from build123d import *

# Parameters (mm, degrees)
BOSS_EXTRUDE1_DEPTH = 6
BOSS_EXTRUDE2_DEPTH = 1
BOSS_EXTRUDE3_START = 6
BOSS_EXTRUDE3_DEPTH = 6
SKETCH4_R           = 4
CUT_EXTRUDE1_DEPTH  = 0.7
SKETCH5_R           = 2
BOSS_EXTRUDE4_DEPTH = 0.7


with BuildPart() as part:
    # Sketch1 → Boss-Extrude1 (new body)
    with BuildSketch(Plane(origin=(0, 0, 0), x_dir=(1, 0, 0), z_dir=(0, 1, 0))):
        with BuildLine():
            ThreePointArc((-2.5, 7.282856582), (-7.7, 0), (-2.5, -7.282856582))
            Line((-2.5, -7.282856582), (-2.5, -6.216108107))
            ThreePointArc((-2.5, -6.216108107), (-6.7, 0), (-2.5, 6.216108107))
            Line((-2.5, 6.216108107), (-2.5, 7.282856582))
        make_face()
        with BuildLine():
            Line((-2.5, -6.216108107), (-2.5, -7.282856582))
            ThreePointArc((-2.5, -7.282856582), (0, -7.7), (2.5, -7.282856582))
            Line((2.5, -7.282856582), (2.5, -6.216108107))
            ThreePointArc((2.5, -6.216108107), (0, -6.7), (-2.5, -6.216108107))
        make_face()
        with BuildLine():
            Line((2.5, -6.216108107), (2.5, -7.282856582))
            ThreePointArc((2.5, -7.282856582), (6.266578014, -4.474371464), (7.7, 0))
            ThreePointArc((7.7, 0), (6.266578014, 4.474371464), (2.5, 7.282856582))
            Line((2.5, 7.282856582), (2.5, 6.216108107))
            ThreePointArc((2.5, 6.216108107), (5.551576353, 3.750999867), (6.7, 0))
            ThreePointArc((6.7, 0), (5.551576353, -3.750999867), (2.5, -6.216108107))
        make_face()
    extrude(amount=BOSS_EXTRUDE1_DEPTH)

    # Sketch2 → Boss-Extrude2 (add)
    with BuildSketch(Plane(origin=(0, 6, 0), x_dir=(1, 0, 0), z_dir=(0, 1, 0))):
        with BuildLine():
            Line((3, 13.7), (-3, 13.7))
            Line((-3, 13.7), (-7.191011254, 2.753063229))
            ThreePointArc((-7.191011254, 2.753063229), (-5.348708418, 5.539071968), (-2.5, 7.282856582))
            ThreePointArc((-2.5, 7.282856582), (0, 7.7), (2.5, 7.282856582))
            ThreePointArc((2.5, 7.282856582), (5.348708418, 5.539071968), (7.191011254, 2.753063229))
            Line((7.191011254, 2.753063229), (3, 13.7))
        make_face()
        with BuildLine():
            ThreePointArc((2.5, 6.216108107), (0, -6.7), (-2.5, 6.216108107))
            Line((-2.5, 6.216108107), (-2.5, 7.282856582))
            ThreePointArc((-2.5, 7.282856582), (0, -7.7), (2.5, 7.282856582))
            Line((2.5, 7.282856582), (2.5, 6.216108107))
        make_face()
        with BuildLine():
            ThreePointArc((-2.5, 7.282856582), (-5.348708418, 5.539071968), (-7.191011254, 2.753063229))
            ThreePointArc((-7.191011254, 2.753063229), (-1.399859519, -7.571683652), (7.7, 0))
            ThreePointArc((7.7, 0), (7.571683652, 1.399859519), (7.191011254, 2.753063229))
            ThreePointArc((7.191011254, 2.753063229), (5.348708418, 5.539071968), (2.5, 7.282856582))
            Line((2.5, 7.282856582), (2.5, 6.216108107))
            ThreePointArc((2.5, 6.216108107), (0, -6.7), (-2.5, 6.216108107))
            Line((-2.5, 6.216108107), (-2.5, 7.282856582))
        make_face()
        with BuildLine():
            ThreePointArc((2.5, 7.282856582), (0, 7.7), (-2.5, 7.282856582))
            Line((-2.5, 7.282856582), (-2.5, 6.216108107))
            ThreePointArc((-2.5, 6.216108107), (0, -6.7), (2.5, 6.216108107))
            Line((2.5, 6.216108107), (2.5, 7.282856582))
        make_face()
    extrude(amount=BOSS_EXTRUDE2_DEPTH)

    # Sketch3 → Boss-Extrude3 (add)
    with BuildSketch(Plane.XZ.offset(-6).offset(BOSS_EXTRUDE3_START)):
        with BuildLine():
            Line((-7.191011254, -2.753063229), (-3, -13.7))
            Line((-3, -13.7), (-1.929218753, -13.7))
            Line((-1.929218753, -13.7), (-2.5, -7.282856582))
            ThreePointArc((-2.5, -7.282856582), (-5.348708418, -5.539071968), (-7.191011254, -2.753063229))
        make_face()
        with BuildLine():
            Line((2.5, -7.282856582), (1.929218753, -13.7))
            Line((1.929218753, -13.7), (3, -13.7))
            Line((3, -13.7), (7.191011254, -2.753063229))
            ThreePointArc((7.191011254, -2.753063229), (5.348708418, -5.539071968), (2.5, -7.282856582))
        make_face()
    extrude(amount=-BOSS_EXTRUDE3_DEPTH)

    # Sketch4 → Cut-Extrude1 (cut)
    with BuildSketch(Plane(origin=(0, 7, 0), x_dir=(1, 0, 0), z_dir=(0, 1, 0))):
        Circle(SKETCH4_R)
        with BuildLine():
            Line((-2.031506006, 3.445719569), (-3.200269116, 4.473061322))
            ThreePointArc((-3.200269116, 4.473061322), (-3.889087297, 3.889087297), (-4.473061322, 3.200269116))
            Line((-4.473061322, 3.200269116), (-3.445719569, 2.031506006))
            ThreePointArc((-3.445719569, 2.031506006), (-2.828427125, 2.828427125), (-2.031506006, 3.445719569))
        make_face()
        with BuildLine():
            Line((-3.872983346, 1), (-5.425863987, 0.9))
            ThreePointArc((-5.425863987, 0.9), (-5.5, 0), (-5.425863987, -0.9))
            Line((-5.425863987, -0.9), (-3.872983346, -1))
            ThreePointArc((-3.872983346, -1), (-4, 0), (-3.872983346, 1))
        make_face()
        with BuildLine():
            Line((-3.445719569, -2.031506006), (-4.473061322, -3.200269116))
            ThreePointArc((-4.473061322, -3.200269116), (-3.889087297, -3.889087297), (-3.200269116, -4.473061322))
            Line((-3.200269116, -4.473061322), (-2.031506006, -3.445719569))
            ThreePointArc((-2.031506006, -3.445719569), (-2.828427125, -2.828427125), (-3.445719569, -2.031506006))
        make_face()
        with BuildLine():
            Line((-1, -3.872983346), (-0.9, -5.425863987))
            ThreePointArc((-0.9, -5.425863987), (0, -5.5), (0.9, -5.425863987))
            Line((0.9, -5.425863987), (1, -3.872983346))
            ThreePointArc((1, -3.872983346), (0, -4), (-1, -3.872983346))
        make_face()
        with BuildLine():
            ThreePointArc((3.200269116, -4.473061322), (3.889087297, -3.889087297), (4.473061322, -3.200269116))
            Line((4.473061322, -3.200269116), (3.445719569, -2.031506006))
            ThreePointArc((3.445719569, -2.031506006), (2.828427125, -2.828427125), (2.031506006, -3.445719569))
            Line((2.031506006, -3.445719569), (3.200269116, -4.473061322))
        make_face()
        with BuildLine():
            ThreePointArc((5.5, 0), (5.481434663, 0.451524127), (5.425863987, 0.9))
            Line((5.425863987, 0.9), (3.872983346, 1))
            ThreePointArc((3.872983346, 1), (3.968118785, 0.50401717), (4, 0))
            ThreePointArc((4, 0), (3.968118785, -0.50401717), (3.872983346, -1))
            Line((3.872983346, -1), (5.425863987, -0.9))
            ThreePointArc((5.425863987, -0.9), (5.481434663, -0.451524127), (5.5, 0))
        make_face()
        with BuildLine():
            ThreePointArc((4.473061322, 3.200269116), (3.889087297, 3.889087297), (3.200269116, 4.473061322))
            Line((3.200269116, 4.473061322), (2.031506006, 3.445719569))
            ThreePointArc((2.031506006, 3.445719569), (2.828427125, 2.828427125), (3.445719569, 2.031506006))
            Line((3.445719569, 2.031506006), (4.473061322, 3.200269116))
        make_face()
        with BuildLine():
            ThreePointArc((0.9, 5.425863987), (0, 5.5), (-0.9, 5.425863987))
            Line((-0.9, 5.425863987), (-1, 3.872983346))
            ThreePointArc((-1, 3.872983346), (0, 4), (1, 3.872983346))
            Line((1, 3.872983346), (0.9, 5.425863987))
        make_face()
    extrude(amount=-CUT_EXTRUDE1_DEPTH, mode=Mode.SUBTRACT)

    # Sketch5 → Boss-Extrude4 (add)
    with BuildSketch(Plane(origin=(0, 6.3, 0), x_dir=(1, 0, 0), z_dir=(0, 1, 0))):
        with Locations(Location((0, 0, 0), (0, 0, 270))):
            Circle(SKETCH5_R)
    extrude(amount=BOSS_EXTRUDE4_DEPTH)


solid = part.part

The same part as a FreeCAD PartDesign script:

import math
import FreeCAD as App
import Part
import Sketcher
from FreeCAD import Vector
Q = App.Units.Quantity

doc = App.newDocument("Part")
body = doc.addObject("PartDesign::Body", "Body")

# Sketch on XZ plane
sketch1 = body.newObject("Sketcher::SketchObject", "Sketch")
sketch1.AttachmentSupport = (doc.getObject("XZ_Plane"), [""])
sketch1.MapMode = "FlatFace"
sketch1.addGeometry([
    Part.ArcOfCircle(Part.Circle(Vector(0, 0, 0), Vector(0, 0, 1), 7.7), math.radians(109), math.radians(251)),  # 0
    Part.ArcOfCircle(Part.Circle(Vector(0, 0, 0), Vector(0, 0, 1), 7.7), math.radians(71), math.radians(109)),  # 1
    Part.ArcOfCircle(Part.Circle(Vector(0, 0, 0), Vector(0, 0, 1), 7.7), math.radians(0), math.radians(71)),  # 2
    Part.ArcOfCircle(Part.Circle(Vector(0, 0, 0), Vector(0, 0, 1), 7.7), math.radians(-71), math.radians(0)),  # 3
    Part.LineSegment(Vector(2.5, -7.3, 0), Vector(2.5, -6.2, 0)),  # 4
    Part.ArcOfCircle(Part.Circle(Vector(0, 0, 0), Vector(0, 0, 1), 6.7), math.radians(-68), math.radians(0)),  # 5
    Part.ArcOfCircle(Part.Circle(Vector(0, 0, 0), Vector(0, 0, 1), 6.7), math.radians(0), math.radians(68)),  # 6
    Part.ArcOfCircle(Part.Circle(Vector(0, 0, 0), Vector(0, 0, 1), 6.7), math.radians(68), math.radians(112)),  # 7
    Part.ArcOfCircle(Part.Circle(Vector(0, 0, 0), Vector(0, 0, 1), 6.7), math.radians(112), math.radians(248)),  # 8
    Part.LineSegment(Vector(-2.5, -6.2, 0), Vector(-2.5, -7.3, 0)),  # 9
], False)
sketch1.addConstraint([
    Sketcher.Constraint("Tangent", 0, 1, 1, 2),
    Sketcher.Constraint("Tangent", 1, 1, 2, 2),
    Sketcher.Constraint("Tangent", 2, 1, 3, 2),
    Sketcher.Constraint("Coincident", 3, 1, 4, 1),
    Sketcher.Constraint("Coincident", 4, 2, 5, 1),
    Sketcher.Constraint("Tangent", 5, 2, 6, 1),
    Sketcher.Constraint("Tangent", 6, 2, 7, 1),
    Sketcher.Constraint("Tangent", 7, 2, 8, 1),
    Sketcher.Constraint("Coincident", 8, 2, 9, 1),
    Sketcher.Constraint("Coincident", 9, 2, 0, 2),
    Sketcher.Constraint("Vertical", 4),
    Sketcher.Constraint("Vertical", 9),
    Sketcher.Constraint("Coincident", 0, 3, -1, 1),
    Sketcher.Constraint("Coincident", 2, 3, -1, 1),
    Sketcher.Constraint("Coincident", 5, 3, -1, 1),
    Sketcher.Constraint("Coincident", 7, 3, -1, 1),
    Sketcher.Constraint("Equal", 2, 3),
    Sketcher.Constraint("Equal", 7, 8),
    Sketcher.Constraint("PointOnObject", 2, 1, -1),
    Sketcher.Constraint("PointOnObject", 5, 2, -1),
    Sketcher.Constraint("Horizontal", 0, 1, 1, 1),
    Sketcher.Constraint("Horizontal", 6, 2, 7, 2),
    Sketcher.Constraint("Horizontal", 4, 2, 8, 2),
    Sketcher.Constraint("Vertical", 1, 1, 3, 1),
    Sketcher.Constraint("Vertical", 4, 2, 6, 2),
    Sketcher.Constraint("Radius", 0, Q("7.7 mm")),
    Sketcher.Constraint("Radius", 5, Q("6.7 mm")),
    Sketcher.Constraint("DistanceX", 0, 1, 1, 1, Q("5 mm")),
])
pad1 = body.newObject("PartDesign::Pad", "Pad")
pad1.Profile = sketch1
pad1.Length = 6
pad1.Reversed = True

# Sketch on XZ plane
sketch2 = body.newObject("Sketcher::SketchObject", "Sketch001")
sketch2.AttachmentSupport = (doc.getObject("XZ_Plane"), [""])
sketch2.MapMode = "FlatFace"
sketch2.AttachmentOffset = App.Placement(Vector(0, 0, -6), App.Rotation())
sketch2.addGeometry([
    Part.LineSegment(Vector(7, -3, 0), Vector(3, -14, 0)),
    Part.LineSegment(Vector(3, -14, 0), Vector(-3, -14, 0)),
    Part.LineSegment(Vector(-3, -14, 0), Vector(-7, -3, 0)),
    Part.ArcOfCircle(Part.Circle(Vector(0, 0, 0), Vector(0, 0, 1), 8), math.radians(-21), math.radians(201)),
], False)
sketch2.addConstraint([
    Sketcher.Constraint("Coincident", 0, 2, 1, 1),
    Sketcher.Constraint("Coincident", 1, 2, 2, 1),
    Sketcher.Constraint("Tangent", 2, 2, 3, 2),
    Sketcher.Constraint("Tangent", 3, 1, 0, 1),
    Sketcher.Constraint("Horizontal", 1),
    Sketcher.Constraint("Coincident", 3, 3, -1, 1),
    Sketcher.Constraint("Horizontal", 2, 2, 3, 1),
    Sketcher.Constraint("Radius", 3, Q("7.7 mm")),
    Sketcher.Constraint("DistanceX", 1, 2, 1, 1, Q("6 mm")),
    Sketcher.Constraint("DistanceY", 0, 2, -1, 1, Q("13.7 mm")),
])
pad2 = body.newObject("PartDesign::Pad", "Pad001")
pad2.Profile = sketch2
pad2.Length = 1
pad2.Reversed = True

# Sketch on XZ plane
sketch3 = body.newObject("Sketcher::SketchObject", "Sketch002")
sketch3.AttachmentSupport = (doc.getObject("XZ_Plane"), [""])
sketch3.MapMode = "FlatFace"
sketch3.addGeometry([
    Part.LineSegment(Vector(-7.2, -2.8, 0), Vector(-3, -13.7, 0)),  # 0
    Part.LineSegment(Vector(-3, -13.7, 0), Vector(-1.9, -13.7, 0)),  # 1
    Part.LineSegment(Vector(-1.9, -13.7, 0), Vector(-2.5, -7.3, 0)),  # 2
    Part.ArcOfCircle(Part.Circle(Vector(0, 0, 0), Vector(0, 0, 1), 7.7), math.radians(-159), math.radians(-109)),  # 3
    Part.LineSegment(Vector(2.5, -7.3, 0), Vector(1.9, -13.7, 0)),  # 4
    Part.LineSegment(Vector(1.9, -13.7, 0), Vector(3, -13.7, 0)),  # 5
    Part.LineSegment(Vector(3, -13.7, 0), Vector(7.2, -2.8, 0)),  # 6
    Part.ArcOfCircle(Part.Circle(Vector(0, 0, 0), Vector(0, 0, 1), 7.7), math.radians(-71), math.radians(-21)),  # 7
], False)
sketch3.addConstraint([
    Sketcher.Constraint("Coincident", 0, 2, 1, 1),
    Sketcher.Constraint("Coincident", 1, 2, 2, 1),
    Sketcher.Constraint("Coincident", 2, 2, 3, 2),
    Sketcher.Constraint("Tangent", 3, 1, 0, 1),
    Sketcher.Constraint("Coincident", 4, 2, 5, 1),
    Sketcher.Constraint("Coincident", 5, 2, 6, 1),
    Sketcher.Constraint("Tangent", 6, 2, 7, 2),
    Sketcher.Constraint("Coincident", 7, 1, 4, 1),
    Sketcher.Constraint("Horizontal", 1),
    Sketcher.Constraint("Horizontal", 5),
    Sketcher.Constraint("Coincident", 3, 3, -1, 1),
    Sketcher.Constraint("Coincident", 7, 3, -1, 1),
    Sketcher.Constraint("Equal", 3, 7),
    Sketcher.Constraint("Symmetric", 1, 2, 4, 2, -2),
    Sketcher.Constraint("Horizontal", 3, 1, 6, 2),
    Sketcher.Constraint("Horizontal", 2, 2, 7, 1),
    Sketcher.Constraint("Radius", 3, Q("7.7 mm")),
    Sketcher.Constraint("DistanceX", 0, 2, -1, 1, Q("3 mm")),
    Sketcher.Constraint("DistanceX", 2, 2, 7, 1, Q("5 mm")),
    Sketcher.Constraint("DistanceY", 0, 2, -1, 1, Q("13.7 mm")),
    Sketcher.Constraint("DistanceX", 1, 1, 1, 2, Q("1.070781 mm")),
])
pad3 = body.newObject("PartDesign::Pad", "Pad002")
pad3.Profile = sketch3
pad3.Length = 6
pad3.Reversed = True

# Sketch on XZ plane
sketch4 = body.newObject("Sketcher::SketchObject", "Sketch003")
sketch4.AttachmentSupport = (doc.getObject("XZ_Plane"), [""])
sketch4.MapMode = "FlatFace"
sketch4.AttachmentOffset = App.Placement(Vector(0, 0, -7), App.Rotation())
sketch4.addGeometry([
    Part.LineSegment(Vector(-2, -3.4, 0), Vector(-3.2, -4.5, 0)),  # 0
    Part.ArcOfCircle(Part.Circle(Vector(0, 0, 0), Vector(0, 0, 1), 5.5), math.radians(-144.42), math.radians(-125.58)),  # 1
    Part.LineSegment(Vector(-4.5, -3.2, 0), Vector(-3.4, -2, 0)),  # 2
    Part.ArcOfCircle(Part.Circle(Vector(0, 0, 0), Vector(0, 0, 1), 4), math.radians(-165.52), math.radians(-149.48)),  # 3
    Part.LineSegment(Vector(-3.9, -1, 0), Vector(-5.4, -0.9, 0)),  # 4
    Part.ArcOfCircle(Part.Circle(Vector(0, 0, 0), Vector(0, 0, 1), 5.5), math.radians(170.58), math.radians(189.42)),  # 5
    Part.LineSegment(Vector(-5.4, 0.9, 0), Vector(-3.9, 1, 0)),  # 6
    Part.ArcOfCircle(Part.Circle(Vector(0, 0, 0), Vector(0, 0, 1), 4), math.radians(149.48), math.radians(165.52)),  # 7
    Part.LineSegment(Vector(-3.4, 2, 0), Vector(-4.5, 3.2, 0)),  # 8
    Part.ArcOfCircle(Part.Circle(Vector(0, 0, 0), Vector(0, 0, 1), 5.5), math.radians(125.58), math.radians(144.42)),  # 9
    Part.LineSegment(Vector(-3.2, 4.5, 0), Vector(-2, 3.4, 0)),  # 10
    Part.ArcOfCircle(Part.Circle(Vector(0, 0, 0), Vector(0, 0, 1), 4), math.radians(104.48), math.radians(120.52)),  # 11
    Part.LineSegment(Vector(-1, 3.9, 0), Vector(-0.9, 5.4, 0)),  # 12
    Part.ArcOfCircle(Part.Circle(Vector(0, 0, 0), Vector(0, 0, 1), 5.5), math.radians(80.58), math.radians(99.42)),  # 13
    Part.LineSegment(Vector(0.9, 5.4, 0), Vector(1, 3.9, 0)),  # 14
    Part.ArcOfCircle(Part.Circle(Vector(0, 0, 0), Vector(0, 0, 1), 4), math.radians(59.48), math.radians(75.52)),  # 15
    Part.LineSegment(Vector(2, 3.4, 0), Vector(3.2, 4.5, 0)),  # 16
    Part.ArcOfCircle(Part.Circle(Vector(0, 0, 0), Vector(0, 0, 1), 5.5), math.radians(35.58), math.radians(54.42)),  # 17
    Part.LineSegment(Vector(4.5, 3.2, 0), Vector(3.4, 2, 0)),  # 18
    Part.ArcOfCircle(Part.Circle(Vector(0, 0, 0), Vector(0, 0, 1), 4), math.radians(14.48), math.radians(30.52)),  # 19
    Part.LineSegment(Vector(3.9, 1, 0), Vector(5.4, 0.9, 0)),  # 20
    Part.ArcOfCircle(Part.Circle(Vector(0, 0, 0), Vector(0, 0, 1), 5.5), math.radians(0), math.radians(9.42)),  # 21
    Part.ArcOfCircle(Part.Circle(Vector(0, 0, 0), Vector(0, 0, 1), 5.5), math.radians(-9.42), math.radians(0)),  # 22
    Part.LineSegment(Vector(5.4, -0.9, 0), Vector(3.9, -1, 0)),  # 23
    Part.ArcOfCircle(Part.Circle(Vector(0, 0, 0), Vector(0, 0, 1), 4), math.radians(-30.52), math.radians(-14.48)),  # 24
    Part.LineSegment(Vector(3.4, -2, 0), Vector(4.5, -3.2, 0)),  # 25
    Part.ArcOfCircle(Part.Circle(Vector(0, 0, 0), Vector(0, 0, 1), 5.5), math.radians(-54.42), math.radians(-35.58)),  # 26
    Part.LineSegment(Vector(3.2, -4.5, 0), Vector(2, -3.4, 0)),  # 27
    Part.ArcOfCircle(Part.Circle(Vector(0, 0, 0), Vector(0, 0, 1), 4), math.radians(-75.52), math.radians(-59.48)),  # 28
    Part.LineSegment(Vector(1, -3.9, 0), Vector(0.9, -5.4, 0)),  # 29
    Part.ArcOfCircle(Part.Circle(Vector(0, 0, 0), Vector(0, 0, 1), 5.5), math.radians(-99.42), math.radians(-80.58)),  # 30
    Part.LineSegment(Vector(-0.9, -5.4, 0), Vector(-1, -3.9, 0)),  # 31
    Part.ArcOfCircle(Part.Circle(Vector(0, 0, 0), Vector(0, 0, 1), 4), math.radians(-120.52), math.radians(-104.48)),  # 32
], False)
sketch4.addConstraint([
    Sketcher.Constraint("Coincident", 0, 2, 1, 2),
    Sketcher.Constraint("Coincident", 1, 1, 2, 1),
    Sketcher.Constraint("Coincident", 2, 2, 3, 2),
    Sketcher.Constraint("Coincident", 3, 1, 4, 1),
    Sketcher.Constraint("Coincident", 4, 2, 5, 2),
    Sketcher.Constraint("Coincident", 5, 1, 6, 1),
    Sketcher.Constraint("Coincident", 6, 2, 7, 2),
    Sketcher.Constraint("Coincident", 7, 1, 8, 1),
    Sketcher.Constraint("Coincident", 8, 2, 9, 2),
    Sketcher.Constraint("Coincident", 9, 1, 10, 1),
    Sketcher.Constraint("Coincident", 10, 2, 11, 2),
    Sketcher.Constraint("Coincident", 11, 1, 12, 1),
    Sketcher.Constraint("Coincident", 12, 2, 13, 2),
    Sketcher.Constraint("Coincident", 13, 1, 14, 1),
    Sketcher.Constraint("Coincident", 14, 2, 15, 2),
    Sketcher.Constraint("Coincident", 15, 1, 16, 1),
    Sketcher.Constraint("Coincident", 16, 2, 17, 2),
    Sketcher.Constraint("Coincident", 17, 1, 18, 1),
    Sketcher.Constraint("Coincident", 18, 2, 19, 2),
    Sketcher.Constraint("Coincident", 19, 1, 20, 1),
    Sketcher.Constraint("Coincident", 20, 2, 21, 2),
    Sketcher.Constraint("Tangent", 21, 1, 22, 2),
    Sketcher.Constraint("Coincident", 22, 1, 23, 1),
    Sketcher.Constraint("Coincident", 23, 2, 24, 2),
    Sketcher.Constraint("Coincident", 24, 1, 25, 1),
    Sketcher.Constraint("Coincident", 25, 2, 26, 2),
    Sketcher.Constraint("Coincident", 26, 1, 27, 1),
    Sketcher.Constraint("Coincident", 27, 2, 28, 2),
    Sketcher.Constraint("Coincident", 28, 1, 29, 1),
    Sketcher.Constraint("Coincident", 29, 2, 30, 2),
    Sketcher.Constraint("Coincident", 30, 1, 31, 1),
    Sketcher.Constraint("Coincident", 31, 2, 32, 2),
    Sketcher.Constraint("Coincident", 32, 1, 0, 1),
    Sketcher.Constraint("Coincident", 1, 3, -1, 1),
    Sketcher.Constraint("Coincident", 3, 3, -1, 1),
    Sketcher.Constraint("Coincident", 5, 3, -1, 1),
    Sketcher.Constraint("Coincident", 7, 3, -1, 1),
    Sketcher.Constraint("Coincident", 9, 3, -1, 1),
    Sketcher.Constraint("Coincident", 11, 3, -1, 1),
    Sketcher.Constraint("Coincident", 13, 3, -1, 1),
    Sketcher.Constraint("Coincident", 15, 3, -1, 1),
    Sketcher.Constraint("Coincident", 17, 3, -1, 1),
    Sketcher.Constraint("Coincident", 19, 3, -1, 1),
    Sketcher.Constraint("Coincident", 21, 3, -1, 1),
    Sketcher.Constraint("Coincident", 24, 3, -1, 1),
    Sketcher.Constraint("Coincident", 26, 3, -1, 1),
    Sketcher.Constraint("Coincident", 28, 3, -1, 1),
    Sketcher.Constraint("Coincident", 30, 3, -1, 1),
    Sketcher.Constraint("Coincident", 32, 3, -1, 1),
    Sketcher.Constraint("Equal", 1, 5),
    Sketcher.Constraint("Equal", 3, 7),
    Sketcher.Constraint("Equal", 5, 9),
    Sketcher.Constraint("Equal", 7, 11),
    Sketcher.Constraint("Equal", 9, 13),
    Sketcher.Constraint("Equal", 11, 15),
    Sketcher.Constraint("Equal", 13, 17),
    Sketcher.Constraint("Equal", 15, 19),
    Sketcher.Constraint("Equal", 17, 21),
    Sketcher.Constraint("Equal", 21, 22),
    Sketcher.Constraint("Equal", 19, 24),
    Sketcher.Constraint("Equal", 22, 26),
    Sketcher.Constraint("Equal", 24, 28),
    Sketcher.Constraint("Equal", 26, 30),
    Sketcher.Constraint("Equal", 28, 32),
    Sketcher.Constraint("PointOnObject", 21, 1, -1),
    Sketcher.Constraint("Perpendicular", 0, 8),
    Sketcher.Constraint("Perpendicular", 2, 10),
    Sketcher.Constraint("Perpendicular", 4, 12),
    Sketcher.Constraint("Perpendicular", 6, 14),
    Sketcher.Constraint("Perpendicular", 8, 16),
    Sketcher.Constraint("Perpendicular", 10, 18),
    Sketcher.Constraint("Perpendicular", 12, 20),
    Sketcher.Constraint("Perpendicular", 14, 23),
    Sketcher.Constraint("Perpendicular", 16, 25),
    Sketcher.Constraint("Perpendicular", 18, 27),
    Sketcher.Constraint("Perpendicular", 20, 29),
    Sketcher.Constraint("Perpendicular", 23, 31),
    Sketcher.Constraint("Horizontal", 12, 2, 13, 1),
    Sketcher.Constraint("Horizontal", 11, 1, 14, 2),
    Sketcher.Constraint("Horizontal", 10, 2, 15, 1),
    Sketcher.Constraint("Horizontal", 9, 1, 16, 2),
    Sketcher.Constraint("Horizontal", 8, 2, 17, 1),
    Sketcher.Constraint("Horizontal", 6, 2, 19, 1),
    Sketcher.Constraint("Horizontal", 4, 2, 22, 1),
    Sketcher.Constraint("Horizontal", 2, 2, 24, 1),
    Sketcher.Constraint("Horizontal", 0, 2, 26, 1),
    Sketcher.Constraint("Horizontal", 29, 2, 30, 1),
    Sketcher.Constraint("Vertical", 4, 2, 5, 1),
    Sketcher.Constraint("Vertical", 2, 2, 7, 1),
    Sketcher.Constraint("Vertical", 0, 2, 9, 1),
    Sketcher.Constraint("Vertical", 14, 2, 28, 1),
    Sketcher.Constraint("Equal", 0, 2),
    Sketcher.Constraint("Equal", 2, 4),
    Sketcher.Constraint("Equal", 10, 12),
    Sketcher.Constraint("Radius", 3, Q("4 mm")),
    Sketcher.Constraint("Radius", 1, Q("5.5 mm")),
    Sketcher.Constraint("DistanceY", 3, 1, -1, 1, Q("1 mm")),
    Sketcher.Constraint("DistanceY", 4, 2, -1, 1, Q("0.9 mm")),
    Sketcher.Constraint("DistanceX", 0, 2, -1, 1, Q("3.200269 mm")),
])
pocket1 = body.newObject("PartDesign::Pocket", "Pocket")
pocket1.Profile = sketch4
pocket1.Length = 0.7
pocket1.Reversed = True

# Sketch on XZ plane
sketch5 = body.newObject("Sketcher::SketchObject", "Sketch004")
sketch5.AttachmentSupport = (doc.getObject("XZ_Plane"), [""])
sketch5.MapMode = "FlatFace"
sketch5.AttachmentOffset = App.Placement(Vector(0, 0, -6.3), App.Rotation())
sketch5.addGeometry(Part.Circle(Vector(0, 0, 0), Vector(0, 0, 1), 2), False)
sketch5.addConstraint([
    Sketcher.Constraint("Coincident", 0, 3, -1, 1),
    Sketcher.Constraint("Diameter", 0, Q("4 mm")),
])
pad4 = body.newObject("PartDesign::Pad", "Pad003")
pad4.Profile = sketch5
pad4.Length = 0.7
pad4.Reversed = True

doc.recompute()
